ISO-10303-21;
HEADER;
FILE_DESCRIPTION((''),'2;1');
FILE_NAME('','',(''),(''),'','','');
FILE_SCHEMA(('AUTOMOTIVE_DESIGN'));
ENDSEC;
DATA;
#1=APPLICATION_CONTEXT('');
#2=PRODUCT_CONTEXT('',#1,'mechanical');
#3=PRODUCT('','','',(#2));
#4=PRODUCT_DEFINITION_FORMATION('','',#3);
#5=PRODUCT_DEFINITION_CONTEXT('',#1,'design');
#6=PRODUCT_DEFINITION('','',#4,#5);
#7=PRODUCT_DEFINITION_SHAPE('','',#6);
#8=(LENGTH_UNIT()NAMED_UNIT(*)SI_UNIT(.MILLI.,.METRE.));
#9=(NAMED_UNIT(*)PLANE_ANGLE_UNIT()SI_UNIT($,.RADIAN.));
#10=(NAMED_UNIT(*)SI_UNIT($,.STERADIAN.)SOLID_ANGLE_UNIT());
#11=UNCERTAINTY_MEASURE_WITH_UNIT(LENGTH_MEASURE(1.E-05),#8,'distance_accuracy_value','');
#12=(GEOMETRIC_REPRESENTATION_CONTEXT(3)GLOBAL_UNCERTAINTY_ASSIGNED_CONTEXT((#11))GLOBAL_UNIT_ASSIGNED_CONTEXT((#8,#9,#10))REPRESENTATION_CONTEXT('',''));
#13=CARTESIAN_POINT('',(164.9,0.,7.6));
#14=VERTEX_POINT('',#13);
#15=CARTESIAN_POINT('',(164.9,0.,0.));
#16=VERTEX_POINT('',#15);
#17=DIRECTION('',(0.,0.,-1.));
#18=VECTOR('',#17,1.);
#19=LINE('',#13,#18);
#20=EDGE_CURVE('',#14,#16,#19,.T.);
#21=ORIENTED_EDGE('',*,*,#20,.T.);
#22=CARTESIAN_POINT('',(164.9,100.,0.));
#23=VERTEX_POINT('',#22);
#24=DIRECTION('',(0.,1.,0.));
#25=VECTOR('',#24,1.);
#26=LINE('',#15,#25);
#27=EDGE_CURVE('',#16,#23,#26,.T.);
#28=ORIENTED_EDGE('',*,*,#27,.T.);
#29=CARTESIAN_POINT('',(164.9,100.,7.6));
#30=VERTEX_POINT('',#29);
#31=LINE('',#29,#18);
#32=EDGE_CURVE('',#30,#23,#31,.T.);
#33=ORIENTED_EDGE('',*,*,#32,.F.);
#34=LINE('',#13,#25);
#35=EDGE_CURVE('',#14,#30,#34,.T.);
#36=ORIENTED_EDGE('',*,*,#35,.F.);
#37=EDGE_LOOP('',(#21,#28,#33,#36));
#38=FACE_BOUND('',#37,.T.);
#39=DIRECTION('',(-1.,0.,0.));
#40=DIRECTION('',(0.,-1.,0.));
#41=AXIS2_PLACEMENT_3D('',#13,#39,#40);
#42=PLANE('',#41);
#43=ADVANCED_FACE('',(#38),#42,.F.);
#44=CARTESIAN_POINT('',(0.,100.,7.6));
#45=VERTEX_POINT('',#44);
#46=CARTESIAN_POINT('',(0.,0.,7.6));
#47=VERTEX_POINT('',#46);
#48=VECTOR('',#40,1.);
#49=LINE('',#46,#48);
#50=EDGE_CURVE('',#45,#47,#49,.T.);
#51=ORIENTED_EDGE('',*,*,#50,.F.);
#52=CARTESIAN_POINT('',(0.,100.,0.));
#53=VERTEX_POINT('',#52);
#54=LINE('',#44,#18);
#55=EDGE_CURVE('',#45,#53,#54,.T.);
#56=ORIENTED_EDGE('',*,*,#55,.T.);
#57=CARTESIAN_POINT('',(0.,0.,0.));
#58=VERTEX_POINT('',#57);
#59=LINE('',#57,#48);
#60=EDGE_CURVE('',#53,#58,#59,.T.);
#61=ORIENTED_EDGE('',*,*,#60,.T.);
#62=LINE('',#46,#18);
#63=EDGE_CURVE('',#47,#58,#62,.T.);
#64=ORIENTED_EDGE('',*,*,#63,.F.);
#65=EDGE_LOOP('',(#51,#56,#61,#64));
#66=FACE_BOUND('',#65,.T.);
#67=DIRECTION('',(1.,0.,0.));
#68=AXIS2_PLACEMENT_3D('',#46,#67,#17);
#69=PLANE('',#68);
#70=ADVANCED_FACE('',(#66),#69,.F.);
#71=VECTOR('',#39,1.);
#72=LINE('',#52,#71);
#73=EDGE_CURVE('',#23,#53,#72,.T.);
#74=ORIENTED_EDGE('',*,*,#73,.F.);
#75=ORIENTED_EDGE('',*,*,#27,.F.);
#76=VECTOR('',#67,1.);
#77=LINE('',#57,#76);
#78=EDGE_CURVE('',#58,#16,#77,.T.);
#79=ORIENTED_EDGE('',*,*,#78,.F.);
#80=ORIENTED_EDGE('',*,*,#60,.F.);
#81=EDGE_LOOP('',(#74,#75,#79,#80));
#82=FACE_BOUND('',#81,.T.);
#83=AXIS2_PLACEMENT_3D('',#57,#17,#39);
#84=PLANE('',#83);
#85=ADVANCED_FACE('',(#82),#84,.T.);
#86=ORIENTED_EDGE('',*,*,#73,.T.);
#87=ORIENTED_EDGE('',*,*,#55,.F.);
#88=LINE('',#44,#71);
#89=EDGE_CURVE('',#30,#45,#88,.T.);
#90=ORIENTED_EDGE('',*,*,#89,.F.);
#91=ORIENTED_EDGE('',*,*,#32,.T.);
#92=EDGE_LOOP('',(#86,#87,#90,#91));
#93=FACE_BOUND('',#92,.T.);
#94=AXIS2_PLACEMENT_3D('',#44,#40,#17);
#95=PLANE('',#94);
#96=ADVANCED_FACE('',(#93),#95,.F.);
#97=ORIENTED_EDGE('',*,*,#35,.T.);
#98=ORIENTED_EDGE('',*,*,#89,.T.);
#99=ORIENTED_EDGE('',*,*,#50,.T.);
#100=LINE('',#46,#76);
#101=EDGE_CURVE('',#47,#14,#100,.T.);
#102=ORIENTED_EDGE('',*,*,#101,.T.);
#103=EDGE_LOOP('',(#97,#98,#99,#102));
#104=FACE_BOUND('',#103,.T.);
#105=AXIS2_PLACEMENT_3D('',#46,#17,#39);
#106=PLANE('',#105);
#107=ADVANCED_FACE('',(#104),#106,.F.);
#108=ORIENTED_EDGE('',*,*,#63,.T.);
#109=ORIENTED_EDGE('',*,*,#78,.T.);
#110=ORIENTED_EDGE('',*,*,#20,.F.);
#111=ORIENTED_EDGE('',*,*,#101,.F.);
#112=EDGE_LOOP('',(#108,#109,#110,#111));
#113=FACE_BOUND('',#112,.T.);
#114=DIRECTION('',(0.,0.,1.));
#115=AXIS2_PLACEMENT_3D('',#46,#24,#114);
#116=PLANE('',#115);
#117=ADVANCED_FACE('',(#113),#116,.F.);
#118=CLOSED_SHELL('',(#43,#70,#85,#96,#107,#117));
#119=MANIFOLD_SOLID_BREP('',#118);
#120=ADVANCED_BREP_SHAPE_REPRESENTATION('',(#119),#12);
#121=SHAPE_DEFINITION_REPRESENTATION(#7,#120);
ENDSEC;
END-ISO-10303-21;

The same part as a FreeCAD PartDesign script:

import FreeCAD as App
import Part
import Sketcher
from FreeCAD import Vector
Q = App.Units.Quantity


def add_polygon(sketch, points):
    """Adds a closed chain of lines whose ends are joined by coincident constraints."""
    first, n = sketch.GeometryCount, len(points)
    for a, b in zip(points, points[1:] + points[:1]):
        sketch.addGeometry(Part.LineSegment(App.Vector(*a, 0), App.Vector(*b, 0)), False)
    for i in range(n):
        sketch.addConstraint(Sketcher.Constraint("Coincident", first + i, 2, first + (i + 1) % n, 1))

doc = App.newDocument("Part")
body = doc.addObject("PartDesign::Body", "Body")

sketch1 = body.newObject("Sketcher::SketchObject", "Sketch")
sketch1.AttachmentSupport = (doc.getObject("XY_Plane"), [""])
sketch1.MapMode = "FlatFace"
add_polygon(sketch1, [(0, 100), (0, 0), (164.9, 0), (164.9, 100)])
sketch1.addConstraint([
    Sketcher.Constraint("Vertical", 0),
    Sketcher.Constraint("Horizontal", 1),
    Sketcher.Constraint("Vertical", 2),
    Sketcher.Constraint("Horizontal", 3),
    Sketcher.Constraint("Coincident", 0, 2, -1, 1),
    Sketcher.Constraint("DistanceY", 0, 2, 0, 1, Q("100 mm")),
    Sketcher.Constraint("DistanceX", 1, 1, 1, 2, Q("164.9 mm")),
])
pad1 = body.newObject("PartDesign::Pad", "Pad")
pad1.Profile = sketch1
pad1.Length = 7.6

doc.recompute()
